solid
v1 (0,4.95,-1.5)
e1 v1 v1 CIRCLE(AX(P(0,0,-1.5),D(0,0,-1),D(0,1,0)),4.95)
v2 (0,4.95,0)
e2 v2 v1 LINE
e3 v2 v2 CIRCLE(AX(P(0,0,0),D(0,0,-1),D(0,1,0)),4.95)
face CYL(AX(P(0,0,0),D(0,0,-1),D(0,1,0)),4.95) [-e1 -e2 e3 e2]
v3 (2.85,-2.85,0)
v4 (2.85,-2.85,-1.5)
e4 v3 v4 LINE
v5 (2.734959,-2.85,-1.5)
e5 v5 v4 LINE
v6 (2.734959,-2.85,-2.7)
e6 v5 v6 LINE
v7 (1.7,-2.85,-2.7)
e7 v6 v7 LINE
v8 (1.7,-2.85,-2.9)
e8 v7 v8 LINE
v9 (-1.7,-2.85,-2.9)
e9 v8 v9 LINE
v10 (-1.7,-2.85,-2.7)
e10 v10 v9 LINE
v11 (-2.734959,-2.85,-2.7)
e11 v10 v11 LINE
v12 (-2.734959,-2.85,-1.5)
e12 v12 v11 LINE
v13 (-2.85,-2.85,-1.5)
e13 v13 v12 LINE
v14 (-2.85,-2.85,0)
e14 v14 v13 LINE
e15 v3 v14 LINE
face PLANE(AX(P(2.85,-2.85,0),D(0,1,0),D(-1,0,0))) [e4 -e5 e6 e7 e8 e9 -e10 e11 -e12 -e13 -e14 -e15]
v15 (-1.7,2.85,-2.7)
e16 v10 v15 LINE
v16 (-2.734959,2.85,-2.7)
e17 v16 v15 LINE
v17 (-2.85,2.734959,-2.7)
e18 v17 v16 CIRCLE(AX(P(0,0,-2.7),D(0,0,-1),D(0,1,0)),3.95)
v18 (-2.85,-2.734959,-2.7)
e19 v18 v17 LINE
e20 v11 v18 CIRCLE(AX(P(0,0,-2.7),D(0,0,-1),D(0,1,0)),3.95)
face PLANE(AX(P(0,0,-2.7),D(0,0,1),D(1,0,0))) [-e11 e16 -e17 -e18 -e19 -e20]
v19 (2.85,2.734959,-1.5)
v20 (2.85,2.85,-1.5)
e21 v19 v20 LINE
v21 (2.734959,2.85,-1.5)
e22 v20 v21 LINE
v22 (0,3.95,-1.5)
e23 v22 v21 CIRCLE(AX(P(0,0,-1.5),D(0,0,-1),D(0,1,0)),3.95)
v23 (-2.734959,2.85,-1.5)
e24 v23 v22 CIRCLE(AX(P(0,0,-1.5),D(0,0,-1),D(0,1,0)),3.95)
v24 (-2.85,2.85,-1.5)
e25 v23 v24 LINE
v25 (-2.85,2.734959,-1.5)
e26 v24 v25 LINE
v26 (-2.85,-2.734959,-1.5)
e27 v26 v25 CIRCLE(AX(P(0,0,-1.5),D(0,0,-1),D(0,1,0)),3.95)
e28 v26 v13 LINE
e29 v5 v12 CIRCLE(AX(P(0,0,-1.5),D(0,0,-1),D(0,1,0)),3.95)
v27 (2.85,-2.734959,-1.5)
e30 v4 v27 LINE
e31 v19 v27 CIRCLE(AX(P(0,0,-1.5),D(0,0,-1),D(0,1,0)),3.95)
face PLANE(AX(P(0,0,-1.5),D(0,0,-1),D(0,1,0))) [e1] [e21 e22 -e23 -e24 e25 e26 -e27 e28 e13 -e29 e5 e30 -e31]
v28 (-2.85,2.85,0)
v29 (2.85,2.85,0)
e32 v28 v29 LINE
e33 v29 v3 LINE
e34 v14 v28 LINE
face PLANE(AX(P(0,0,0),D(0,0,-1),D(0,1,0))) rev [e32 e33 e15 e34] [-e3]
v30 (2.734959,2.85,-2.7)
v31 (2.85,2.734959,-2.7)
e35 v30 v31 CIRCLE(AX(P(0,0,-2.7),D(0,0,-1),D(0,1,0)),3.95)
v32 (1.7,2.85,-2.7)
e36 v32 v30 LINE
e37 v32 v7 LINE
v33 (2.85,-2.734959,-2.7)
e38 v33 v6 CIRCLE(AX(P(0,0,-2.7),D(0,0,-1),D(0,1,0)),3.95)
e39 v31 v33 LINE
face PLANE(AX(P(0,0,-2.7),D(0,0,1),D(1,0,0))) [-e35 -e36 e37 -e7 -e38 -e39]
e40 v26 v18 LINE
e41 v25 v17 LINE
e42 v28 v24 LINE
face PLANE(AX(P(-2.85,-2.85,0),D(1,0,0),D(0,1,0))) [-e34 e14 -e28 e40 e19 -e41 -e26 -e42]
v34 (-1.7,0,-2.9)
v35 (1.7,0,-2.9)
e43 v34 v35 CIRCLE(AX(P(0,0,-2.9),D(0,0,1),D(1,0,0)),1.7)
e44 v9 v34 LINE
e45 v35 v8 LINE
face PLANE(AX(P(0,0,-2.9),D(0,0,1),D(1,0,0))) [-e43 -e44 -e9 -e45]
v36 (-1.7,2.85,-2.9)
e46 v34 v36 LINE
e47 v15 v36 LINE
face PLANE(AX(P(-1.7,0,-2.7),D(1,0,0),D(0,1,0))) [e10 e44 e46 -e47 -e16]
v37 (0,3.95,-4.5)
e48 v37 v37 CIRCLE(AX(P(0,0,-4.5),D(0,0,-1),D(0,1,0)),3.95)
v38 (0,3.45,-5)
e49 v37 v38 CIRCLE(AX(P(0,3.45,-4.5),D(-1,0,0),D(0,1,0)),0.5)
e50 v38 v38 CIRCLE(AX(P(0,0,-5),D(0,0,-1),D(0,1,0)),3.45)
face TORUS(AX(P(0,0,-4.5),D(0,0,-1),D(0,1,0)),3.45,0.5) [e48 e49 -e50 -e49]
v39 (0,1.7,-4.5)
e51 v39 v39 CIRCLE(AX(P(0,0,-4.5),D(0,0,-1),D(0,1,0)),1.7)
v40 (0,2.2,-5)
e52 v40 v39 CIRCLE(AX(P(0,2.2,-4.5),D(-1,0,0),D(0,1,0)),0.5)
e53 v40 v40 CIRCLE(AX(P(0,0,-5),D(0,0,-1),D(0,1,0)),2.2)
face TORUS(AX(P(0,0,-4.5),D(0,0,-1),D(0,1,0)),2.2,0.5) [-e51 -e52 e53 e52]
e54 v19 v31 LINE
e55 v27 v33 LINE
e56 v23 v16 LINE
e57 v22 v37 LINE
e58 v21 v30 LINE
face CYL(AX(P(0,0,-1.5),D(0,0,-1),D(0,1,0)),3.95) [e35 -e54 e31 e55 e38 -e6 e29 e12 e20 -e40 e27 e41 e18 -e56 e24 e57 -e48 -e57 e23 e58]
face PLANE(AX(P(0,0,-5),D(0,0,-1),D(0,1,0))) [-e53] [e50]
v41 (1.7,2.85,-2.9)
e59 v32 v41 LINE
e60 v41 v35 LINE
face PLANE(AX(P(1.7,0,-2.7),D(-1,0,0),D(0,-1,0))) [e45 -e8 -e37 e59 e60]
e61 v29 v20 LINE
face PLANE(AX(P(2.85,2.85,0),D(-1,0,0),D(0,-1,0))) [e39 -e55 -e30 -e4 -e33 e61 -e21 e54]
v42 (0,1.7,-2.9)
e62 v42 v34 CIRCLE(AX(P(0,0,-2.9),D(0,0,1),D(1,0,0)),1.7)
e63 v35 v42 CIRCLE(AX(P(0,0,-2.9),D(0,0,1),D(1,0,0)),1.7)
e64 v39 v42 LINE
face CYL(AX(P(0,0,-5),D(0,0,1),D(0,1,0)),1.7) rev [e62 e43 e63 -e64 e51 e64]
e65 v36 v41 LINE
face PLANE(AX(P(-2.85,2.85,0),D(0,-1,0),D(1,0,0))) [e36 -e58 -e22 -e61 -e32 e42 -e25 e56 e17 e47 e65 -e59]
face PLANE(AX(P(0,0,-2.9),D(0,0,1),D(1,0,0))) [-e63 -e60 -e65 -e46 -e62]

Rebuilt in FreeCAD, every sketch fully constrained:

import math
import FreeCAD as App
import Part
import Sketcher
from FreeCAD import Vector


def edges_at(feature, points):
    """Names of the edges that pass closest to the given points."""
    edges = feature.Shape.Edges
    near = lambda p: min(range(len(edges)), key=lambda i: edges[i].distToShape(Part.Vertex(*p))[0])
    return sorted({f"Edge{near(p) + 1}" for p in points})


def add_polygon(sketch, points):
    """Adds a closed chain of lines whose ends are joined by coincident constraints."""
    first, n = sketch.GeometryCount, len(points)
    for a, b in zip(points, points[1:] + points[:1]):
        sketch.addGeometry(Part.LineSegment(App.Vector(*a, 0), App.Vector(*b, 0)), False)
    for i in range(n):
        sketch.addConstraint(Sketcher.Constraint("Coincident", first + i, 2, first + (i + 1) % n, 1))

doc = App.newDocument("Part")
body = doc.addObject("PartDesign::Body", "Body")

sketch1 = doc.addObject("Sketcher::SketchObject", "Sketch")
body.addObject(sketch1)
sketch1.AttachmentSupport = (doc.YZ_Plane, [""])
sketch1.MapMode = "FlatFace"
add_polygon(sketch1, [(5, 0), (1.7, 0), (1.7, -5), (4, -5), (4, -1.5), (5, -1.5)])
sketch1.addConstraint(Sketcher.Constraint("Horizontal", 0))
sketch1.addConstraint(Sketcher.Constraint("Vertical", 1))
sketch1.addConstraint(Sketcher.Constraint("Horizontal", 2))
sketch1.addConstraint(Sketcher.Constraint("Vertical", 3))
sketch1.addConstraint(Sketcher.Constraint("Horizontal", 4))
sketch1.addConstraint(Sketcher.Constraint("Vertical", 5))
sketch1.addConstraint(Sketcher.Constraint("PointOnObject", 0, 2, -1))
sketch1.addConstraint(Sketcher.Constraint("DistanceX", 4, 1, 4, 2, 1.0))
sketch1.addConstraint(Sketcher.Constraint("DistanceY", 3, 1, 3, 2, 3.5))
sketch1.addConstraint(Sketcher.Constraint("DistanceY", 5, 1, 5, 2, 1.5))
sketch1.addConstraint(Sketcher.Constraint("DistanceX", -1, 1, 0, 2, 1.7))
sketch1.addConstraint(Sketcher.Constraint("DistanceX", -1, 1, 2, 2, 3.95))
revolution = doc.addObject("PartDesign::Revolution", "Revolution")
body.addObject(revolution)
revolution.Profile = sketch1
revolution.ReferenceAxis = (sketch1, ["V_Axis"])
revolution.Angle = 360

sketch2 = doc.addObject("Sketcher::SketchObject", "Sketch001")
body.addObject(sketch2)
sketch2.AttachmentSupport = (doc.XY_Plane, [""])
sketch2.MapMode = "FlatFace"
add_polygon(sketch2, [(-3, -3), (3, -3), (3, 3), (-3, 3)])
sketch2.addConstraint(Sketcher.Constraint("Horizontal", 0))
sketch2.addConstraint(Sketcher.Constraint("Vertical", 1))
sketch2.addConstraint(Sketcher.Constraint("Horizontal", 2))
sketch2.addConstraint(Sketcher.Constraint("Vertical", 3))
sketch2.addConstraint(Sketcher.Constraint("Symmetric", 0, 2, 2, 2, -1, 1))
sketch2.addConstraint(Sketcher.Constraint("Equal", 2, 1))
sketch2.addConstraint(Sketcher.Constraint("DistanceX", 0, 1, 0, 2, 5.7))
pocket1 = doc.addObject("PartDesign::Pocket", "Pocket")
body.addObject(pocket1)
pocket1.Profile = sketch2
pocket1.Length = 2.7
doc.recompute()

fillet = doc.addObject("PartDesign::Fillet", "Fillet")
body.addObject(fillet)
fillet.Base = (pocket1, edges_at(pocket1, [(0, -3.95, -5), (0, -1.7, -5)]))
fillet.Radius = 0.5

sketch3 = doc.addObject("Sketcher::SketchObject", "Sketch002")
body.addObject(sketch3)
sketch3.AttachmentSupport = (doc.XY_Plane, [""])
sketch3.MapMode = "FlatFace"
sketch3.AttachmentOffset = App.Placement(Vector(0, 0, -2.7), App.Rotation())
sketch3.addGeometry(Part.LineSegment(Vector(1.7, 2.9, 0), Vector(-1.7, 2.9, 0)), False)
sketch3.addGeometry(Part.LineSegment(Vector(-1.7, 2.9, 0), Vector(-1.7, 0, 0)), False)
sketch3.addGeometry(Part.ArcOfCircle(Part.Circle(Vector(0, 0, 0), Vector(0, 0, 1), 1.7), math.radians(0), math.radians(180)), False)
sketch3.addGeometry(Part.LineSegment(Vector(1.7, 0, 0), Vector(1.7, 2.9, 0)), False)
sketch3.addGeometry(Part.ArcOfCircle(Part.Circle(Vector(0, 0, 0), Vector(0, 0, 1), 1.7), math.radians(180), math.radians(360)), False)
sketch3.addGeometry(Part.LineSegment(Vector(-1.7, 0, 0), Vector(-1.7, -2.9, 0)), False)
sketch3.addGeometry(Part.LineSegment(Vector(-1.7, -2.9, 0), Vector(1.7, -2.9, 0)), False)
sketch3.addGeometry(Part.LineSegment(Vector(1.7, -2.9, 0), Vector(1.7, 0, 0)), False)
sketch3.addConstraint(Sketcher.Constraint("Coincident", 0, 2, 1, 1))
sketch3.addConstraint(Sketcher.Constraint("Tangent", 1, 2, 2, 2))
sketch3.addConstraint(Sketcher.Constraint("Tangent", 2, 1, 3, 1))
sketch3.addConstraint(Sketcher.Constraint("Coincident", 3, 2, 0, 1))
sketch3.addConstraint(Sketcher.Constraint("Tangent", 4, 1, 5, 1))
sketch3.addConstraint(Sketcher.Constraint("Coincident", 5, 2, 6, 1))
sketch3.addConstraint(Sketcher.Constraint("Coincident", 6, 2, 7, 1))
sketch3.addConstraint(Sketcher.Constraint("Tangent", 7, 2, 4, 2))
sketch3.addConstraint(Sketcher.Constraint("Horizontal", 0))
sketch3.addConstraint(Sketcher.Constraint("Vertical", 1))
sketch3.addConstraint(Sketcher.Constraint("Vertical", 3))
sketch3.addConstraint(Sketcher.Constraint("Vertical", 5))
sketch3.addConstraint(Sketcher.Constraint("Horizontal", 6))
sketch3.addConstraint(Sketcher.Constraint("Vertical", 7))
sketch3.addConstraint(Sketcher.Constraint("Coincident", 2, 3, -1, 1))
sketch3.addConstraint(Sketcher.Constraint("Coincident", 4, 3, -1, 1))
sketch3.addConstraint(Sketcher.Constraint("Equal", 2, 4))
sketch3.addConstraint(Sketcher.Constraint("Equal", 3, 5))
sketch3.addConstraint(Sketcher.Constraint("Radius", 2, 1.7))
sketch3.addConstraint(Sketcher.Constraint("DistanceY", 1, 2, 1, 1, 2.85))
pocket2 = doc.addObject("PartDesign::Pocket", "Pocket001")
body.addObject(pocket2)
pocket2.Profile = sketch3
pocket2.Length = 0.2

doc.recompute()
